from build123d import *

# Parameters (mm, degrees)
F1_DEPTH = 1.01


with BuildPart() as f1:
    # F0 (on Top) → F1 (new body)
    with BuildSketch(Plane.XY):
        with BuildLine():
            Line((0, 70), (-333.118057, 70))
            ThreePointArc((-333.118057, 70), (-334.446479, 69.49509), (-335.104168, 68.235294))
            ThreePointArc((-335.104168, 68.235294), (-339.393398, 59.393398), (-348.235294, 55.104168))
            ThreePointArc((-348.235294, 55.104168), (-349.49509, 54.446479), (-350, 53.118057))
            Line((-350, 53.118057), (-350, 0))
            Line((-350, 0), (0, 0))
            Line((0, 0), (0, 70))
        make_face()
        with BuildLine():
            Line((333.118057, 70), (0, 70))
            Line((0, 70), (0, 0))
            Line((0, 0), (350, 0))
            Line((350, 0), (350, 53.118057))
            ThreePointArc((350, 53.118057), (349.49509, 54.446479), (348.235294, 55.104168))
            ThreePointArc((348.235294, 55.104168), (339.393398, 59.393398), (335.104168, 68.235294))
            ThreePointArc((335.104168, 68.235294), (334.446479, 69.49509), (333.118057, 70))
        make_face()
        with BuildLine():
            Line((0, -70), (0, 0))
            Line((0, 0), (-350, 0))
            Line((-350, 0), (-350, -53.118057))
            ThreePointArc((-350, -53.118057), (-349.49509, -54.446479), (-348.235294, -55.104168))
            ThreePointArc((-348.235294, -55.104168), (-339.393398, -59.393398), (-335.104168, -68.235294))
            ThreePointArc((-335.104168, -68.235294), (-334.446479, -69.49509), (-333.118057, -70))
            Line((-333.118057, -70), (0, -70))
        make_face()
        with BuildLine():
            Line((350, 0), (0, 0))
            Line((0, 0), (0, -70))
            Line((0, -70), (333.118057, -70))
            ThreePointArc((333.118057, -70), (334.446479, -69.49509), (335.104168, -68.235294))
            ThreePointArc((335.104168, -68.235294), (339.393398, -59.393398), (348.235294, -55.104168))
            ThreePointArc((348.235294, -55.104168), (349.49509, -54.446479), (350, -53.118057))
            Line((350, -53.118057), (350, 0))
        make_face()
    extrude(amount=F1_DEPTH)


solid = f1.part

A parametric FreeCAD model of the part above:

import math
import FreeCAD as App
import Part
import Sketcher

V = App.Vector

doc = App.newDocument("Part")
body = doc.addObject("PartDesign::Body", "Body")

# Sketch on XY plane
sketch1 = body.newObject("Sketcher::SketchObject", "Sketch")
sketch1.AttachmentSupport = (doc.getObject("XY_Plane"), [""])
sketch1.MapMode = "FlatFace"
sketch1.addGeometry([
    Part.ArcOfCircle(Part.Circle(V(-333.1, 68, 0), V(0, 0, 1), 2), math.radians(90), math.radians(173)),  # 0
    Part.ArcOfCircle(Part.Circle(V(-350, 70, 0), V(0, 0, 1), 15), math.radians(-83), math.radians(-7)),  # 1
    Part.ArcOfCircle(Part.Circle(V(-348, 53.1, 0), V(0, 0, 1), 2), math.radians(97), math.radians(180)),  # 2
    Part.LineSegment(V(-350, 53.1, 0), V(-350, -53.1, 0)),  # 3
    Part.ArcOfCircle(Part.Circle(V(-348, -53.1, 0), V(0, 0, 1), 2), math.radians(-180), math.radians(-97)),  # 4
    Part.ArcOfCircle(Part.Circle(V(-350, -70, 0), V(0, 0, 1), 15), math.radians(7), math.radians(83)),  # 5
    Part.ArcOfCircle(Part.Circle(V(-333.1, -68, 0), V(0, 0, 1), 2), math.radians(-173), math.radians(-90)),  # 6
    Part.LineSegment(V(-333.1, -70, 0), V(333.1, -70, 0)),  # 7
    Part.ArcOfCircle(Part.Circle(V(333.1, -68, 0), V(0, 0, 1), 2), math.radians(-90), math.radians(-7)),  # 8
    Part.ArcOfCircle(Part.Circle(V(350, -70, 0), V(0, 0, 1), 15), math.radians(97), math.radians(173)),  # 9
    Part.ArcOfCircle(Part.Circle(V(348, -53.1, 0), V(0, 0, 1), 2), math.radians(-83), math.radians(0)),  # 10
    Part.LineSegment(V(350, -53.1, 0), V(350, 53.1, 0)),  # 11
    Part.ArcOfCircle(Part.Circle(V(348, 53.1, 0), V(0, 0, 1), 2), math.radians(0), math.radians(83)),  # 12
    Part.ArcOfCircle(Part.Circle(V(350, 70, 0), V(0, 0, 1), 15), math.radians(-173), math.radians(-97)),  # 13
    Part.ArcOfCircle(Part.Circle(V(333.1, 68, 0), V(0, 0, 1), 2), math.radians(7), math.radians(90)),  # 14
    Part.LineSegment(V(333.1, 70, 0), V(-333.1, 70, 0)),  # 15
], False)
sketch1.addConstraint([
    Sketcher.Constraint("Tangent", 0, 2, 1, 2),
    Sketcher.Constraint("Tangent", 1, 1, 2, 1),
    Sketcher.Constraint("Tangent", 2, 2, 3, 1),
    Sketcher.Constraint("Tangent", 3, 2, 4, 1),
    Sketcher.Constraint("Tangent", 4, 2, 5, 2),
    Sketcher.Constraint("Tangent", 5, 1, 6, 1),
    Sketcher.Constraint("Tangent", 6, 2, 7, 1),
    Sketcher.Constraint("Tangent", 7, 2, 8, 1),
    Sketcher.Constraint("Tangent", 8, 2, 9, 2),
    Sketcher.Constraint("Tangent", 9, 1, 10, 1),
    Sketcher.Constraint("Tangent", 10, 2, 11, 1),
    Sketcher.Constraint("Tangent", 11, 2, 12, 1),
    Sketcher.Constraint("Tangent", 12, 2, 13, 2),
    Sketcher.Constraint("Tangent", 13, 1, 14, 1),
    Sketcher.Constraint("Tangent", 14, 2, 15, 1),
    Sketcher.Constraint("Tangent", 15, 2, 0, 1),
    Sketcher.Constraint("Vertical", 3),
    Sketcher.Constraint("Horizontal", 7),
    Sketcher.Constraint("Vertical", 11),
    Sketcher.Constraint("Horizontal", 15),
    Sketcher.Constraint("Equal", 0, 2),
    Sketcher.Constraint("Equal", 2, 4),
    Sketcher.Constraint("Equal", 1, 5),
    Sketcher.Constraint("Equal", 4, 6),
    Sketcher.Constraint("Equal", 6, 8),
    Sketcher.Constraint("Equal", 5, 9),
    Sketcher.Constraint("Equal", 8, 10),
    Sketcher.Constraint("Equal", 10, 12),
    Sketcher.Constraint("Equal", 9, 13),
    Sketcher.Constraint("Equal", 12, 14),
    Sketcher.Constraint("Symmetric", 0, 3, 8, 3, -1, 1),
    Sketcher.Constraint("Symmetric", 2, 3, 10, 3, -1, 1),
    Sketcher.Constraint("Symmetric", 5, 3, 13, 3, -1, 1),
    Sketcher.Constraint("Symmetric", 5, 3, 9, 3, -2),
    Sketcher.Constraint("Horizontal", 9, 3, 6, 2),
    Sketcher.Constraint("Vertical", 5, 3, 2, 2),
    Sketcher.Constraint("Radius", 0, 2.000001),
    Sketcher.Constraint("Radius", 1, 14.999998),
    Sketcher.Constraint("DistanceY", -1, 1, 0, 3, 67.999999),
    Sketcher.Constraint("DistanceX", 1, 3, -1, 1, 349.999998),
])
pad1 = body.newObject("PartDesign::Pad", "Pad")
pad1.Profile = sketch1
pad1.Length = 1.01

doc.recompute()
